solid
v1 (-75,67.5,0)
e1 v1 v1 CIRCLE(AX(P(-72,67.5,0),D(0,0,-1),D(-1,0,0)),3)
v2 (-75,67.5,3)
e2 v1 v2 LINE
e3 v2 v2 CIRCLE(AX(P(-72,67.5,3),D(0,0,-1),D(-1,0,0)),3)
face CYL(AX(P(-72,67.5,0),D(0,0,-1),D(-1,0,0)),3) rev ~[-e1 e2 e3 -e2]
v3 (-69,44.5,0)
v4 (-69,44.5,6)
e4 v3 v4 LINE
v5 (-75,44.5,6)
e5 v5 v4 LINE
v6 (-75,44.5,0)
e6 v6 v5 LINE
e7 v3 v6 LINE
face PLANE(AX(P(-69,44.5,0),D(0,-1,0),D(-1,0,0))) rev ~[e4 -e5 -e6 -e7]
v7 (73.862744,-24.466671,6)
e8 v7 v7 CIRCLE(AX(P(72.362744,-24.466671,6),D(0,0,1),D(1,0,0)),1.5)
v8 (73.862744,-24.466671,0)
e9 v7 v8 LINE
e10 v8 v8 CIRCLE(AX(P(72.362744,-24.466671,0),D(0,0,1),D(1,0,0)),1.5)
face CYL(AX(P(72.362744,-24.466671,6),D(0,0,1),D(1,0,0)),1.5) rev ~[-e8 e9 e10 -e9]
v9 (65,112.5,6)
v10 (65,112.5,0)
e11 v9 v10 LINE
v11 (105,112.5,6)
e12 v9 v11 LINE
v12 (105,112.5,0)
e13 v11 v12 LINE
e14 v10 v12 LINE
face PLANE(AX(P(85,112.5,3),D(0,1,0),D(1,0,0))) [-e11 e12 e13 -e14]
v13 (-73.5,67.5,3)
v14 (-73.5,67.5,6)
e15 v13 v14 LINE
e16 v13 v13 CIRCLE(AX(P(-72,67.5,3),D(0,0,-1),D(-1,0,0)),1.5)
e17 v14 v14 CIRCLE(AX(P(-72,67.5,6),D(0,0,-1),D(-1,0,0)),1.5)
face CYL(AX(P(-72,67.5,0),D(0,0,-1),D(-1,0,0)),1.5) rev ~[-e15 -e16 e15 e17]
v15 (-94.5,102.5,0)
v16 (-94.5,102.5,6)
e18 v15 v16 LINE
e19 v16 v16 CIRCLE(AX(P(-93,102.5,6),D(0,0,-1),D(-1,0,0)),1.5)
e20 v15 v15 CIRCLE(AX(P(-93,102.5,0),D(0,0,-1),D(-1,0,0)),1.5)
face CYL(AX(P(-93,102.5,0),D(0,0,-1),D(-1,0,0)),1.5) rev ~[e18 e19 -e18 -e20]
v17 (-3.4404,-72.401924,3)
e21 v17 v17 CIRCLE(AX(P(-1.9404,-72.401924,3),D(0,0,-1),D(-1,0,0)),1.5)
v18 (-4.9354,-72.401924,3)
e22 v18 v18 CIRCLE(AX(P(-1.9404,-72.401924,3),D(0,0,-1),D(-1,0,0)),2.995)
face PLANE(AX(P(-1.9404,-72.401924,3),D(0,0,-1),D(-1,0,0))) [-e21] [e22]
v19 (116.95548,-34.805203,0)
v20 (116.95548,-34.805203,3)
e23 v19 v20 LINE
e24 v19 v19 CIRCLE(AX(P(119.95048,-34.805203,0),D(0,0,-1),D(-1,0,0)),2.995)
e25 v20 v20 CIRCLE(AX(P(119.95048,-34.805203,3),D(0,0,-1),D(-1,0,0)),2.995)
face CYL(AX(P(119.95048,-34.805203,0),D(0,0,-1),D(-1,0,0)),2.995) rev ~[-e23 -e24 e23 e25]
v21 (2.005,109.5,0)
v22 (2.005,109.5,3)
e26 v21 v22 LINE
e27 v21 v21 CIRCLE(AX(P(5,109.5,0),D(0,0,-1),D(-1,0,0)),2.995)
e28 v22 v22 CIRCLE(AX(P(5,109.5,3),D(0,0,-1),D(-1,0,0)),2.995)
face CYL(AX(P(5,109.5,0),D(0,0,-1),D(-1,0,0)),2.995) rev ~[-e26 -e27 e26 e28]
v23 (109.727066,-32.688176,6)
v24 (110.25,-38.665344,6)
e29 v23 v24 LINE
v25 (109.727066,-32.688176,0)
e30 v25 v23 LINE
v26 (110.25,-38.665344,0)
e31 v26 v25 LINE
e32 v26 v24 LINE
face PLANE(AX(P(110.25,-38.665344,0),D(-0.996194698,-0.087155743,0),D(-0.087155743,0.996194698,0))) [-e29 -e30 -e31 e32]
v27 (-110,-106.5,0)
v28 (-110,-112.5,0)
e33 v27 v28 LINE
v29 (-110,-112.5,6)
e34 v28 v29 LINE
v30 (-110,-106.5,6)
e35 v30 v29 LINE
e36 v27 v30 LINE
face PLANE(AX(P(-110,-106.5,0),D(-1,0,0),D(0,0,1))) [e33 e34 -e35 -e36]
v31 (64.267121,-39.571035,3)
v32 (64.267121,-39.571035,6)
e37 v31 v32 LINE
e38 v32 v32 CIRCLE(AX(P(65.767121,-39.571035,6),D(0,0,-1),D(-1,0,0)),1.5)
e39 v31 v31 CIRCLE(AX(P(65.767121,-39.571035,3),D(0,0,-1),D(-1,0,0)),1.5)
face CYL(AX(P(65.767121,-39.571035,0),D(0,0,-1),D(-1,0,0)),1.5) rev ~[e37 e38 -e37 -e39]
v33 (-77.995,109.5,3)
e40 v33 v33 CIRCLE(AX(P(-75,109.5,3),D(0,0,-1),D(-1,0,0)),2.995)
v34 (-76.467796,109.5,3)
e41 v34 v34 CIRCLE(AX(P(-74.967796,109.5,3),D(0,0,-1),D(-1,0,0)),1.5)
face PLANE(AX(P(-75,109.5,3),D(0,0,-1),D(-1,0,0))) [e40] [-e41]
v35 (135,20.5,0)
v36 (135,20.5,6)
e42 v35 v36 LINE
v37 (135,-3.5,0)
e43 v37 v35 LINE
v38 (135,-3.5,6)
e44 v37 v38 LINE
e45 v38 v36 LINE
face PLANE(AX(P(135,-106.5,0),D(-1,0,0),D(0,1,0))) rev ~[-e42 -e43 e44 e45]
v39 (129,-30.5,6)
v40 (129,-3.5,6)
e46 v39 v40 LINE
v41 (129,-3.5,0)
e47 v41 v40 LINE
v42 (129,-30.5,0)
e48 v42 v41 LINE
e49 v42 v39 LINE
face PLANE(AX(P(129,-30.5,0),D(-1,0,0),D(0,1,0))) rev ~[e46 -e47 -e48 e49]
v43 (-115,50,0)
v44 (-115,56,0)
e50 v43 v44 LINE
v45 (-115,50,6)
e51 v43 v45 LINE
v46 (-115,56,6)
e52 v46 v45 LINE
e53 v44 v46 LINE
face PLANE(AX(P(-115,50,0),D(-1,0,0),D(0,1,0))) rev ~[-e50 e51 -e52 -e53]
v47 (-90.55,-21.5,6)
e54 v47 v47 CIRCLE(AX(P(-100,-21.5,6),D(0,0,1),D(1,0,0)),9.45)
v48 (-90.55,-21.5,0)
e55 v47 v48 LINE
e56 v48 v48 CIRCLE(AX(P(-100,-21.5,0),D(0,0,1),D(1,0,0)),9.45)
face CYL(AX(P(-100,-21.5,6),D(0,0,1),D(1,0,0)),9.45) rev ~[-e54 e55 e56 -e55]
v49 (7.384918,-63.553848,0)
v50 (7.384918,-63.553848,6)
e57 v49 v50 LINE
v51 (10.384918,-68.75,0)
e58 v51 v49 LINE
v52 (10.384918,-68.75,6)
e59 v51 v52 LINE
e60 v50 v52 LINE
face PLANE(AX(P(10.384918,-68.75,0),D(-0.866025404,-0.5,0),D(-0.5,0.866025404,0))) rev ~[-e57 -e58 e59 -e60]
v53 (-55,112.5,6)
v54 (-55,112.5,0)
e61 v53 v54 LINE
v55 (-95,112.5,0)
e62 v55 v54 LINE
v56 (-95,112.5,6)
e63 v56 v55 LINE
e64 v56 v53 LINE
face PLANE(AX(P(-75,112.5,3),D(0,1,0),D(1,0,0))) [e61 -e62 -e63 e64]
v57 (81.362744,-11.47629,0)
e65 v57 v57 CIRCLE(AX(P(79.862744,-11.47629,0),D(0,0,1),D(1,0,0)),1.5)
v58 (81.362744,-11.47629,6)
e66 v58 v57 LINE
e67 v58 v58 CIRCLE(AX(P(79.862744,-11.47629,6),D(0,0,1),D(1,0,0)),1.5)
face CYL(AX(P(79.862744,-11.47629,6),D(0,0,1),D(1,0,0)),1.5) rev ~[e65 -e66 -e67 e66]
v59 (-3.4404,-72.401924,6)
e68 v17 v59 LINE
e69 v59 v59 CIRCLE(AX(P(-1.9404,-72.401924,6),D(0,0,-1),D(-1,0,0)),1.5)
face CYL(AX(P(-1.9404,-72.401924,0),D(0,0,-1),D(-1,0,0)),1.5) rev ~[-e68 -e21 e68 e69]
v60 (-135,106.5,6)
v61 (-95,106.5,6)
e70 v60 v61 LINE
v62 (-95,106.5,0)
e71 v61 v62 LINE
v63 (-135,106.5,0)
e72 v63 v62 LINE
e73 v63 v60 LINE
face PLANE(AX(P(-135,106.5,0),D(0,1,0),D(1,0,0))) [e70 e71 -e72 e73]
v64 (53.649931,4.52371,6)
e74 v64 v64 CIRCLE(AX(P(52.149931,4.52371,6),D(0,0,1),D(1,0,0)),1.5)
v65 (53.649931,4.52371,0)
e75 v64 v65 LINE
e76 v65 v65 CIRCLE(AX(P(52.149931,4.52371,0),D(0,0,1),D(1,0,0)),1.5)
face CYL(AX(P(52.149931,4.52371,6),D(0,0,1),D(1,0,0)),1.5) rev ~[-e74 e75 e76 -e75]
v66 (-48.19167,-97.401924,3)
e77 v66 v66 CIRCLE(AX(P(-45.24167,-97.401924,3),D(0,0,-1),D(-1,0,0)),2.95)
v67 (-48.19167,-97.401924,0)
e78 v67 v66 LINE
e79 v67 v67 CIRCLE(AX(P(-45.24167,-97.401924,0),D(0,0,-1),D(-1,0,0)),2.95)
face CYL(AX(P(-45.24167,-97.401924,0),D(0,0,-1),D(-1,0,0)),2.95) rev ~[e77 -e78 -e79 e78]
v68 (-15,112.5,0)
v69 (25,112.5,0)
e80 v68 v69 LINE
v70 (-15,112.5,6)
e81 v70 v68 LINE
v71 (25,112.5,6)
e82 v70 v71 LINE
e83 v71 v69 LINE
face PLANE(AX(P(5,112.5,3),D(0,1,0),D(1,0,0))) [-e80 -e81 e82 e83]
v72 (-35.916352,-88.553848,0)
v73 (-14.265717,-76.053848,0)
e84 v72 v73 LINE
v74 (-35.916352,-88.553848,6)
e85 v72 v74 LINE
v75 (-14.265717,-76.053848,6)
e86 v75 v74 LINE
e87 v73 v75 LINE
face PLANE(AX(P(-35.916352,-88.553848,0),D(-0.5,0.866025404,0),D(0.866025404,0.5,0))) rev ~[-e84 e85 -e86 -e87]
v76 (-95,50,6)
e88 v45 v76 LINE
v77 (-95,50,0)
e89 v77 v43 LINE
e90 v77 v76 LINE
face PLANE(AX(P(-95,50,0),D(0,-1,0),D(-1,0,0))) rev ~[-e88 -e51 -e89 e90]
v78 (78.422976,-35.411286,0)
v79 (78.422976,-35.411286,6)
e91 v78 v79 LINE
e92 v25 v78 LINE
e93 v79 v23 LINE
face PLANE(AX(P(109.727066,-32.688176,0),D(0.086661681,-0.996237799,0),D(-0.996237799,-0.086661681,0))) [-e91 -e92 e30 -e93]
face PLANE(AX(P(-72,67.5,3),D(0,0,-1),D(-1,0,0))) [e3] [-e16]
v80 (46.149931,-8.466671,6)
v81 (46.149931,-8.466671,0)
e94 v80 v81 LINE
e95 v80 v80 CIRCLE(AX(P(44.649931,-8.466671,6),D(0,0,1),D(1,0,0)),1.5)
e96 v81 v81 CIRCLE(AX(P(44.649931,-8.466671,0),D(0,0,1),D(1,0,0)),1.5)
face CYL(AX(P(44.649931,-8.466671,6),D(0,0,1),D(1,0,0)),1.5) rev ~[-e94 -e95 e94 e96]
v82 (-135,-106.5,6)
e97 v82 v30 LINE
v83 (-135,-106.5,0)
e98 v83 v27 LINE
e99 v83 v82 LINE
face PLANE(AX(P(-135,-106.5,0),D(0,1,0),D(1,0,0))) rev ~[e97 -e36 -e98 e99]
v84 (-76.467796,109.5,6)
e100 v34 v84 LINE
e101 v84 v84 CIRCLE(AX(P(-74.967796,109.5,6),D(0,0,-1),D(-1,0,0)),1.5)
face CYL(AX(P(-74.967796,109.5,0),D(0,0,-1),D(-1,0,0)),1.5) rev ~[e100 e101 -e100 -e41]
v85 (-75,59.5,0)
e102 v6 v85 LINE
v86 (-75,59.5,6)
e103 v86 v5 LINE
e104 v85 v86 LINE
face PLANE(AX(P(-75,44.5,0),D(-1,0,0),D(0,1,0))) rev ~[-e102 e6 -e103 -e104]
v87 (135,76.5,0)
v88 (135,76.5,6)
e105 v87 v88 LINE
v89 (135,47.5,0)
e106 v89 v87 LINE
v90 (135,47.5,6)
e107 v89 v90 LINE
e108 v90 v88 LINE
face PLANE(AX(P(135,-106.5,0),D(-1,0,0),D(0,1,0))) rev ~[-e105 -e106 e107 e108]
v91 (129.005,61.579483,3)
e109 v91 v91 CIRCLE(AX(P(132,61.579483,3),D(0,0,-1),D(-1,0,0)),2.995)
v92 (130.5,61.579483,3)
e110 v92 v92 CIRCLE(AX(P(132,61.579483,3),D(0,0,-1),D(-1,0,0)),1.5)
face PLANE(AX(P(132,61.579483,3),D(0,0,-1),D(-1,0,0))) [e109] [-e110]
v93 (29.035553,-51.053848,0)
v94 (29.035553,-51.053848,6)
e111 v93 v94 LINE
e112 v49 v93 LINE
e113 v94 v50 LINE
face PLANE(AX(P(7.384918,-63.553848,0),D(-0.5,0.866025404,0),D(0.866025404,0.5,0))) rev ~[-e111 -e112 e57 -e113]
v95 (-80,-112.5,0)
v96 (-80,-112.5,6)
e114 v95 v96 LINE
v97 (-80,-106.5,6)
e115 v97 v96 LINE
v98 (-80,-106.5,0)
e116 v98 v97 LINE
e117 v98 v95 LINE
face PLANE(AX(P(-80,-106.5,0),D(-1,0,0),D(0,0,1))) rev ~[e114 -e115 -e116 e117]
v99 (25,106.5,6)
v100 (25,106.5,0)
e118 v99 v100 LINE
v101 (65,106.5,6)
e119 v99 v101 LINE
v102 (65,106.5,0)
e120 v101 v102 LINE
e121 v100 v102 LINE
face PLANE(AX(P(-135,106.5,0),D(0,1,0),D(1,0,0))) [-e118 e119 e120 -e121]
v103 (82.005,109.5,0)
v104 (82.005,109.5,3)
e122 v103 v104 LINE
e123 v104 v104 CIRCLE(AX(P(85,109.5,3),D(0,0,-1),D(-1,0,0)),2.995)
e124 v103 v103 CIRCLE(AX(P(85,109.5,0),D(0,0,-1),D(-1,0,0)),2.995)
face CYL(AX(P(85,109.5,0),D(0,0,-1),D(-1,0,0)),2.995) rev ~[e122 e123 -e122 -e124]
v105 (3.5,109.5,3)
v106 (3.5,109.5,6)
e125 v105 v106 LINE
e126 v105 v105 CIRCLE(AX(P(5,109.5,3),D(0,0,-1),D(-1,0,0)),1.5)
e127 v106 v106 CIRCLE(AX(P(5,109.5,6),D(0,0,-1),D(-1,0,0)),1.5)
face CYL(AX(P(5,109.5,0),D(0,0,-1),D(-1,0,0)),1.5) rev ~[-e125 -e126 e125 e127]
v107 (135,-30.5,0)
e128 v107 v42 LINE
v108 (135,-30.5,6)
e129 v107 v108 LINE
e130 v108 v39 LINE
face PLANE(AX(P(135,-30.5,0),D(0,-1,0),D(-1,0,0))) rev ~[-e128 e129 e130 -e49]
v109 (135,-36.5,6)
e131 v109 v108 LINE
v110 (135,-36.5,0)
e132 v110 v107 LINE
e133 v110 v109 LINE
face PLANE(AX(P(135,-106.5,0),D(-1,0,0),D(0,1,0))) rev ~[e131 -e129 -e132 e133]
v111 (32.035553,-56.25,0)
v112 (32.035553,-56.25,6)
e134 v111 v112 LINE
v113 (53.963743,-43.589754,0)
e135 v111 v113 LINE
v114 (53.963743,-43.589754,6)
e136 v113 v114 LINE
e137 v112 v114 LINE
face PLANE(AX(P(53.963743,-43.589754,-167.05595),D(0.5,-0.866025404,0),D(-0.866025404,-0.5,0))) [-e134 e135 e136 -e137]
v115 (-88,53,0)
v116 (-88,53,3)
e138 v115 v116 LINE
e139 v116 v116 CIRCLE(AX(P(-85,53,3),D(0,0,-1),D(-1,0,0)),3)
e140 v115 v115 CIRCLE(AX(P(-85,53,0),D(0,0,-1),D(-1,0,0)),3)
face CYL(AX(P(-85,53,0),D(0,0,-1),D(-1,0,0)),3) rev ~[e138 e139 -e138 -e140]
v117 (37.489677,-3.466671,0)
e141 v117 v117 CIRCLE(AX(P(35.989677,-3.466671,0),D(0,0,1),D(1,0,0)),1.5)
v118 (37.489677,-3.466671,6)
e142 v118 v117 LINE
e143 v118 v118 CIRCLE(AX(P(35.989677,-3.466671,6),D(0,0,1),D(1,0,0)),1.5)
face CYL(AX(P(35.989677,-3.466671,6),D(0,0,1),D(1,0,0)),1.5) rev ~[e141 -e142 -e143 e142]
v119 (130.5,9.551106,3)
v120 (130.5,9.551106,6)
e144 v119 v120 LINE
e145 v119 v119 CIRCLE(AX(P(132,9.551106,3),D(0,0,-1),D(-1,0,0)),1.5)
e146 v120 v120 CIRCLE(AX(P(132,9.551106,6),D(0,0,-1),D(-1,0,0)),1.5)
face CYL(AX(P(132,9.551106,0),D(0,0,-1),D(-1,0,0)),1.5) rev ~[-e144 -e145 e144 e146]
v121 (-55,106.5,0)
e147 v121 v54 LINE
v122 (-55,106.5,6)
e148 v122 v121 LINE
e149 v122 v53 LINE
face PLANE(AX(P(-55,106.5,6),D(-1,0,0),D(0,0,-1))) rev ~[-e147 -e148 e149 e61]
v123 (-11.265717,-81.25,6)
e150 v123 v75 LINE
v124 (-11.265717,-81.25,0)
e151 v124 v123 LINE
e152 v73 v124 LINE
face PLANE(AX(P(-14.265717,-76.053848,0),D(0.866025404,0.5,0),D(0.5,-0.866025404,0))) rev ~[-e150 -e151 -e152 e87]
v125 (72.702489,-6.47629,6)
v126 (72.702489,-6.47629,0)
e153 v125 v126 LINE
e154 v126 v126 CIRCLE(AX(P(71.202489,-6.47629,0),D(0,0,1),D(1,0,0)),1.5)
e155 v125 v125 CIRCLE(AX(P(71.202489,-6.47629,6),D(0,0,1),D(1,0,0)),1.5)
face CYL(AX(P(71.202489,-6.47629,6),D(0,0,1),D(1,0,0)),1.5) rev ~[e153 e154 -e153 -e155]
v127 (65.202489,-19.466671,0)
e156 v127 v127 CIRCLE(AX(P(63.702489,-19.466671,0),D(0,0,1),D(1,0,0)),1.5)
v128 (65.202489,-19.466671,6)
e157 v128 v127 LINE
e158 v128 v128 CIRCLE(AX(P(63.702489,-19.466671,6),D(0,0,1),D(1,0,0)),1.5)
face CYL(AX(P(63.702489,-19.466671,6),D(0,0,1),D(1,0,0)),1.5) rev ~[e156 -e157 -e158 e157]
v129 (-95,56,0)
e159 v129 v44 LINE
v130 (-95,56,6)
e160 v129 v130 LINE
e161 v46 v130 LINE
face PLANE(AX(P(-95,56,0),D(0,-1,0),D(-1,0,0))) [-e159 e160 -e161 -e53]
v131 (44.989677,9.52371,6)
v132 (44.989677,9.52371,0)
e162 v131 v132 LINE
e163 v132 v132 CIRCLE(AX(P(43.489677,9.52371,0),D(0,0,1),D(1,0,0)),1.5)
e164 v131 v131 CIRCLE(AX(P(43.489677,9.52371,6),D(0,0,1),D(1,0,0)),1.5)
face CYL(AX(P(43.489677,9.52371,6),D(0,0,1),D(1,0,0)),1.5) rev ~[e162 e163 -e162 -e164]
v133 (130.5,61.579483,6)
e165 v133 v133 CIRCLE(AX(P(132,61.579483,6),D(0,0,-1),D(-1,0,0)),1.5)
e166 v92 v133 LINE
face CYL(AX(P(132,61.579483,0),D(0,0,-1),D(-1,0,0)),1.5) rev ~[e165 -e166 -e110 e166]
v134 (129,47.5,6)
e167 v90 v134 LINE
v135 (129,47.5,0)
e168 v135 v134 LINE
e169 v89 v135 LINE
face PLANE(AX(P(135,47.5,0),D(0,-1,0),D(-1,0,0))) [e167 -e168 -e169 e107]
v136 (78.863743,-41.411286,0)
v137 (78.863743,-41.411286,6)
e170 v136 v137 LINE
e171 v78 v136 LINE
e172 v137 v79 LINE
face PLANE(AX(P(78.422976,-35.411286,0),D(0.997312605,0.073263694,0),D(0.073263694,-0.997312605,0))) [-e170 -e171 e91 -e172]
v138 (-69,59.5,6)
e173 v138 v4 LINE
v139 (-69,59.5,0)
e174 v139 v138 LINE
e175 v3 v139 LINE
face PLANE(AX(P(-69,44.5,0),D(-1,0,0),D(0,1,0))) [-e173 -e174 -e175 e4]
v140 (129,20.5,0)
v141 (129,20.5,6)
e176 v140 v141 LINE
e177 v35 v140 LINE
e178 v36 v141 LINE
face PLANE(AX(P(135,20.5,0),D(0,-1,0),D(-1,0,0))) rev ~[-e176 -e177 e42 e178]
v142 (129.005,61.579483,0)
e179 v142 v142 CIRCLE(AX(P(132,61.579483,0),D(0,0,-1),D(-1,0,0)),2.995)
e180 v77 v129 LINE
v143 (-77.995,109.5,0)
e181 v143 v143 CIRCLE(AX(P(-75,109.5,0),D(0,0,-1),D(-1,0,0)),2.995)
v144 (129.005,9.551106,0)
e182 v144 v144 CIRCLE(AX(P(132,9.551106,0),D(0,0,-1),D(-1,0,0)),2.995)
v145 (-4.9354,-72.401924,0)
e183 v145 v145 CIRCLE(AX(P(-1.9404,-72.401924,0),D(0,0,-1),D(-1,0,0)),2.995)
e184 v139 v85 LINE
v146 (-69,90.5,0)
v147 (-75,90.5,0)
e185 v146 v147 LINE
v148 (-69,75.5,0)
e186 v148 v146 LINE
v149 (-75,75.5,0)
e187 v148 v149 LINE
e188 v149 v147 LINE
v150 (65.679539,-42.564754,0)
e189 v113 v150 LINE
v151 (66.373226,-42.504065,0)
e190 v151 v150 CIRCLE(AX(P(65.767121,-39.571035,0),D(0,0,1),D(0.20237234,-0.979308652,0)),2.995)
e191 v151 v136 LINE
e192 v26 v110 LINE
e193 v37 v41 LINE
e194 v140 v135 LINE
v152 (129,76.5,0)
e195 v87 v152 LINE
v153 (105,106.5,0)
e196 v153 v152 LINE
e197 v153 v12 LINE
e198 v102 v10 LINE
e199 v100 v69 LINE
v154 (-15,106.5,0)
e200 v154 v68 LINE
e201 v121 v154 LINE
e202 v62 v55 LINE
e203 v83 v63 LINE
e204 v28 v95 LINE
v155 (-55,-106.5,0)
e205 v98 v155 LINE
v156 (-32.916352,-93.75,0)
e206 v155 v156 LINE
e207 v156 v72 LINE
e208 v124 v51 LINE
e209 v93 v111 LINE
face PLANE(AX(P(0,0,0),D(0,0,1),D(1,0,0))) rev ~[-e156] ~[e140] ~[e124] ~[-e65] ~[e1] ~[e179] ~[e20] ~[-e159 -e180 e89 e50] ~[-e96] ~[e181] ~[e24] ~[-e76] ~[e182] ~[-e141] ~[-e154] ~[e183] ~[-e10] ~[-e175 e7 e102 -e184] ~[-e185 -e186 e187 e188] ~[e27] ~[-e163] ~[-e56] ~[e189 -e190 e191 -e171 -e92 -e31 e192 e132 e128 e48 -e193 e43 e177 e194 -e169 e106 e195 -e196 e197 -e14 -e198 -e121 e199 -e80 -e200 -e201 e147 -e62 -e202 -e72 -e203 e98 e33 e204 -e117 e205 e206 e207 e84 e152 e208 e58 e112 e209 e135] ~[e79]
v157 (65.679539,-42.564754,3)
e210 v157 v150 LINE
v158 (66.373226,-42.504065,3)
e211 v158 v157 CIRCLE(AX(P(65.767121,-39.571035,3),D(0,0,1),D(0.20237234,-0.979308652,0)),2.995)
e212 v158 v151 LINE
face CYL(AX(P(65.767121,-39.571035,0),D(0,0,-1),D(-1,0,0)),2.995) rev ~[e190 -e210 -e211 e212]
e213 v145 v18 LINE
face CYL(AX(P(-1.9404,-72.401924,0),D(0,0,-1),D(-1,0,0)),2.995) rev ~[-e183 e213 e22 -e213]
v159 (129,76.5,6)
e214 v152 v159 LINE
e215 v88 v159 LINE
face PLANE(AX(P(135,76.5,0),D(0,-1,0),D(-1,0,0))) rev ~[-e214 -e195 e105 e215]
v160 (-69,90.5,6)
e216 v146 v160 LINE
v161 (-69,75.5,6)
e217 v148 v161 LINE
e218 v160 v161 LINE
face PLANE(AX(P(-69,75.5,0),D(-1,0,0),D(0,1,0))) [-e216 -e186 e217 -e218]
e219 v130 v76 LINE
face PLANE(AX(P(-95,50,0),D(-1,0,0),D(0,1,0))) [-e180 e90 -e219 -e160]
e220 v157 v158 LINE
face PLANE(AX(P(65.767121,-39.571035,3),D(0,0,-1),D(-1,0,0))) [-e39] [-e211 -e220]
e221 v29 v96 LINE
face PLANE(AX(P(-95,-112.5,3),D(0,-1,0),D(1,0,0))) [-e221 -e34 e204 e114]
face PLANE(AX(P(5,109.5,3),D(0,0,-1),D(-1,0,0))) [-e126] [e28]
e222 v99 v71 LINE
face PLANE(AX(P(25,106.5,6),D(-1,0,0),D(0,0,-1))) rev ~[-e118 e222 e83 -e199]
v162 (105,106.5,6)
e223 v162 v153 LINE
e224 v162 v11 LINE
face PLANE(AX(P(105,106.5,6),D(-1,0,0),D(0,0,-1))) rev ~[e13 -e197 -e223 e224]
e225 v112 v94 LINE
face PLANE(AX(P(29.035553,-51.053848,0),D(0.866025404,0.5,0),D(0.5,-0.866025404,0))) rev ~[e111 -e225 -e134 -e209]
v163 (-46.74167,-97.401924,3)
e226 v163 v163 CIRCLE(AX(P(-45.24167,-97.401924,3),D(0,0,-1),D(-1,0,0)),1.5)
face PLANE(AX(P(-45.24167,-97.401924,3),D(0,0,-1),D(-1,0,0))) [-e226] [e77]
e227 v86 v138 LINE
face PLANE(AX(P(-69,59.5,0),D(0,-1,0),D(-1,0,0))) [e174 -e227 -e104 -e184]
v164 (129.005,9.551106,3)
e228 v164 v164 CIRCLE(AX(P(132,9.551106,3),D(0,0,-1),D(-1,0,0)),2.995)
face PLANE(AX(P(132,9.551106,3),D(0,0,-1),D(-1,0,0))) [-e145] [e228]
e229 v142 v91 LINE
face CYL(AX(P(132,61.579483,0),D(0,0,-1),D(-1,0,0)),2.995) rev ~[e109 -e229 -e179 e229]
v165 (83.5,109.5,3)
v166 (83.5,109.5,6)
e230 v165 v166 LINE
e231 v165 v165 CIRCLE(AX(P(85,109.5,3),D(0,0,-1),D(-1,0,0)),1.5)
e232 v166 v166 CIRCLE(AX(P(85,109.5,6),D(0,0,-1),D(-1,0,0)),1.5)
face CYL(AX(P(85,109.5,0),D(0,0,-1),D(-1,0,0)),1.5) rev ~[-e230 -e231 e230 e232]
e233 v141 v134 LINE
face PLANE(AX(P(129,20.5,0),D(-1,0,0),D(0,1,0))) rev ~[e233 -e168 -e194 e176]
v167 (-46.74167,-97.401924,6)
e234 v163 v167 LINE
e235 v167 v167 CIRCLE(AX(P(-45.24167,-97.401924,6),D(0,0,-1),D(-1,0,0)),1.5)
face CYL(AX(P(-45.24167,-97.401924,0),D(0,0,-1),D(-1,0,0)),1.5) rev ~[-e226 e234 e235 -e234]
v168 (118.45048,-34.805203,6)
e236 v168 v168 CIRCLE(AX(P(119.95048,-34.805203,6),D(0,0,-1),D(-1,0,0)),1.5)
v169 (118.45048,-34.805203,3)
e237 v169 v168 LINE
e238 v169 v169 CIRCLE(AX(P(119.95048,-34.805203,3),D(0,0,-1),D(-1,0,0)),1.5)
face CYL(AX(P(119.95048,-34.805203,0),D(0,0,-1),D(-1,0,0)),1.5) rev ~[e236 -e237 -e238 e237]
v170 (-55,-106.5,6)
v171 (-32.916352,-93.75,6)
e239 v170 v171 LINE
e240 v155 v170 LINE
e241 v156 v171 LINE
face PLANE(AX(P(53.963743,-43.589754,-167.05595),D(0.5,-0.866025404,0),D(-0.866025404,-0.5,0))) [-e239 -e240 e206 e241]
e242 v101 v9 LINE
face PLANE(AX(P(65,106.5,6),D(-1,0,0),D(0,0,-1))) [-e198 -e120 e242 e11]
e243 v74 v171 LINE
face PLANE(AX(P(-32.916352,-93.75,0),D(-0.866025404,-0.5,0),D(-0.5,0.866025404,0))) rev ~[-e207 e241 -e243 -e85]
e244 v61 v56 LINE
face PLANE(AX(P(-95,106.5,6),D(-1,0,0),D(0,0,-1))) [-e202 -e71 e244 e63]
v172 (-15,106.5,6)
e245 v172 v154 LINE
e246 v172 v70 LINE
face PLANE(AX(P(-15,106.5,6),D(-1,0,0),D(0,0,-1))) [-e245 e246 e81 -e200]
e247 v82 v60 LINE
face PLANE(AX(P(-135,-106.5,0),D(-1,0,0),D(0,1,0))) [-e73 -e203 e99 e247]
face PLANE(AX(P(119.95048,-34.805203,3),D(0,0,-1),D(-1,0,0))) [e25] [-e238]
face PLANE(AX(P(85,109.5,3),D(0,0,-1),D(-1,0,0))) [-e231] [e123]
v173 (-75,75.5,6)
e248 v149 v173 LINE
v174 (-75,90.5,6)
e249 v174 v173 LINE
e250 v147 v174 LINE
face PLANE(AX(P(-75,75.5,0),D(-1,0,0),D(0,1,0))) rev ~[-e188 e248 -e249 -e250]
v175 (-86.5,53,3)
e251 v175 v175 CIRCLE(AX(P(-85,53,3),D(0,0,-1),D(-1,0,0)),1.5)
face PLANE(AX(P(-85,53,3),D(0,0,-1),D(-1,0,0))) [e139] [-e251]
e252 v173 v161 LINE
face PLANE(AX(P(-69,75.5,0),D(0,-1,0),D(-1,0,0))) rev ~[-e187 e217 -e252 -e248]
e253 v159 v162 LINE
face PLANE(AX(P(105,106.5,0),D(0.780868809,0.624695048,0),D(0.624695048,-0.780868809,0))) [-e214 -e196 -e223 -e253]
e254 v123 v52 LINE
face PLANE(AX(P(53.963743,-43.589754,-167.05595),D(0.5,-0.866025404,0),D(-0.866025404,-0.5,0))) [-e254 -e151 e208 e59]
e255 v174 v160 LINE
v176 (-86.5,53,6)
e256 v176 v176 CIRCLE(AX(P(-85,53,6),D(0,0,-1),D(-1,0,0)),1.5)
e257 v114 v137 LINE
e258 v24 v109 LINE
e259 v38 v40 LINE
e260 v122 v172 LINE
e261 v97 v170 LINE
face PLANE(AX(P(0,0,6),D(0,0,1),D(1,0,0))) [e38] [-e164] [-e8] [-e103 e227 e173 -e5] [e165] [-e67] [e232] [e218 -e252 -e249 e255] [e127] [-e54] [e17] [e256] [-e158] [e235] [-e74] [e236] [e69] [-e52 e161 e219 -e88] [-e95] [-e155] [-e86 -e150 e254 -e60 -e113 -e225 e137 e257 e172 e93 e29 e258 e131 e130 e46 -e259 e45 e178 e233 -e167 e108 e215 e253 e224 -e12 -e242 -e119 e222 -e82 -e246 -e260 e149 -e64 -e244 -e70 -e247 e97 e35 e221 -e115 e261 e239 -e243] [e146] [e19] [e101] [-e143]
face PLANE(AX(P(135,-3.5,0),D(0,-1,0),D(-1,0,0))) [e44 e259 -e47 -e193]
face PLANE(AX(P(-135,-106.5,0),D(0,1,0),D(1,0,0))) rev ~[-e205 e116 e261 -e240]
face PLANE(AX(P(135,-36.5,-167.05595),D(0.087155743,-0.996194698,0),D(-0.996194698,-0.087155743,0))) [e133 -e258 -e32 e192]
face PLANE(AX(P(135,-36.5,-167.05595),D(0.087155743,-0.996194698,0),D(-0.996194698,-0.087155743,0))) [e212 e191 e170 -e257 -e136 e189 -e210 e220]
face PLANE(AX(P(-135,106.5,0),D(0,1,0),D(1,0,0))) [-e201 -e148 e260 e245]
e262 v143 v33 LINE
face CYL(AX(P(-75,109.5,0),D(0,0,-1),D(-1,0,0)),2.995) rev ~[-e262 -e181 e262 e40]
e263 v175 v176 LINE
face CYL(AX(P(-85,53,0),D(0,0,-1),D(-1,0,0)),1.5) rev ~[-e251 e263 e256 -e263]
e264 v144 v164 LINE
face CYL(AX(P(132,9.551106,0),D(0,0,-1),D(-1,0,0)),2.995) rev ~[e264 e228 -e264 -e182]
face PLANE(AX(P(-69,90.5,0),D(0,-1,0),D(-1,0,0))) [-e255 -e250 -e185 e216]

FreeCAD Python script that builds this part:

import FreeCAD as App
import Part
import Sketcher

V = App.Vector
Q = App.Units.Quantity


def add_polygon(sketch, points):
    """Adds a closed chain of lines whose ends are joined by coincident constraints."""
    first, n = sketch.GeometryCount, len(points)
    for a, b in zip(points, points[1:] + points[:1]):
        sketch.addGeometry(Part.LineSegment(App.Vector(*a, 0), App.Vector(*b, 0)), False)
    for i in range(n):
        sketch.addConstraint(Sketcher.Constraint("Coincident", first + i, 2, first + (i + 1) % n, 1))

doc = App.newDocument("Part")
body = doc.addObject("PartDesign::Body", "Body")

sketch1 = body.newObject("Sketcher::SketchObject", "Sketch")
sketch1.AttachmentSupport = (doc.getObject("XY_Plane"), [""])
sketch1.MapMode = "FlatFace"
add_polygon(sketch1, [(-135, 106), (-135, -106), (135, -106), (135, 106)])
sketch1.addConstraint([
    Sketcher.Constraint("Vertical", 0),
    Sketcher.Constraint("Horizontal", 1),
    Sketcher.Constraint("Vertical", 2),
    Sketcher.Constraint("Horizontal", 3),
    Sketcher.Constraint("Symmetric", 0, 2, 2, 2, -1, 1),
    Sketcher.Constraint("DistanceX", 1, 1, 1, 2, Q("270 mm")),
    Sketcher.Constraint("DistanceY", 0, 2, 0, 1, Q("213 mm")),
])
pad1 = body.newObject("PartDesign::Pad", "Pad")
pad1.Profile = sketch1
pad1.Length = 6

sketch2 = body.newObject("Sketcher::SketchObject", "Sketch001")
sketch2.AttachmentSupport = (doc.getObject("XY_Plane"), [""])
sketch2.MapMode = "FlatFace"
sketch2.AttachmentOffset = App.Placement(V(0, 0, 6), App.Rotation())
sketch2.addGeometry([
    Part.Circle(V(-100, -21.5, 0), V(0, 0, 1), 9.4),
    Part.Circle(V(43.5, 9.5, 0), V(0, 0, 1), 1.5),
    Part.Circle(V(52.1, 4.5, 0), V(0, 0, 1), 1.5),
    Part.Circle(V(36, -3.5, 0), V(0, 0, 1), 1.5),
    Part.Circle(V(44.6, -8.5, 0), V(0, 0, 1), 1.5),
    Part.Circle(V(63.7, -19.5, 0), V(0, 0, 1), 1.5),
    Part.Circle(V(72.4, -24.5, 0), V(0, 0, 1), 1.5),
    Part.Circle(V(79.9, -11.5, 0), V(0, 0, 1), 1.5),
    Part.Circle(V(71.2, -6.5, 0), V(0, 0, 1), 1.5),
], False)
sketch2.addConstraint([
    Sketcher.Constraint("Equal", 1, 2),
    Sketcher.Constraint("Equal", 2, 3),
    Sketcher.Constraint("Equal", 3, 4),
    Sketcher.Constraint("Equal", 4, 5),
    Sketcher.Constraint("Equal", 5, 6),
    Sketcher.Constraint("Equal", 6, 7),
    Sketcher.Constraint("Equal", 7, 8),
    Sketcher.Constraint("Diameter", 1, Q("3 mm")),
    Sketcher.Constraint("Diameter", 0, Q("18.9 mm")),
    Sketcher.Constraint("DistanceX", 0, 3, -1, 1, Q("100 mm")),
    Sketcher.Constraint("DistanceY", 2, 3, 1, 3, Q("5 mm")),
    Sketcher.Constraint("DistanceY", 4, 3, 3, 3, Q("5 mm")),
    Sketcher.Constraint("DistanceY", 5, 3, 4, 3, Q("11 mm")),
    Sketcher.Constraint("DistanceY", 6, 3, 5, 3, Q("5 mm")),
    Sketcher.Constraint("DistanceY", 7, 3, 2, 3, Q("16 mm")),
    Sketcher.Constraint("DistanceY", 7, 3, 8, 3, Q("5 mm")),
    Sketcher.Constraint("DistanceY", 0, 3, -1, 1, Q("21.5 mm")),
    Sketcher.Constraint("DistanceX", 3, 3, 1, 3, Q("7.5 mm")),
    Sketcher.Constraint("DistanceX", 4, 3, 2, 3, Q("7.5 mm")),
    Sketcher.Constraint("DistanceX", 6, 3, 7, 3, Q("7.5 mm")),
    Sketcher.Constraint("DistanceX", 5, 3, 8, 3, Q("7.5 mm")),
    Sketcher.Constraint("DistanceY", -1, 1, 1, 3, Q("9.52371 mm")),
    Sketcher.Constraint("DistanceX", -1, 1, 2, 3, Q("52.149931 mm")),
    Sketcher.Constraint("DistanceY", 3, 3, -1, 1, Q("3.466671 mm")),
    Sketcher.Constraint("DistanceX", -1, 1, 5, 3, Q("63.702489 mm")),
    Sketcher.Constraint("DistanceX", -1, 1, 1, 3, Q("43.489677 mm")),
    Sketcher.Constraint("DistanceX", -1, 1, 6, 3, Q("72.362744 mm")),
])
pocket1 = body.newObject("PartDesign::Pocket", "Pocket")
pocket1.Profile = sketch2
pocket1.Length = 10

sketch3 = body.newObject("Sketcher::SketchObject", "Sketch002")
sketch3.AttachmentSupport = (doc.getObject("XY_Plane"), [""])
sketch3.MapMode = "FlatFace"
sketch3.AttachmentOffset = App.Placement(V(0, 0, 6), App.Rotation())
add_polygon(sketch3, [(135, -36), (54, -44), (-55, -106), (135, -106)])
sketch3.addConstraint([
    Sketcher.Constraint("Horizontal", 2),
    Sketcher.Constraint("Vertical", 3),
    Sketcher.Constraint("DistanceX", 2, 1, 2, 2, Q("190 mm")),
    Sketcher.Constraint("DistanceY", 3, 1, 3, 2, Q("70 mm")),
    Sketcher.Constraint("Angle", 0, Q("-175 deg")),
    Sketcher.Constraint("Angle", 1, Q("-150 deg")),
    Sketcher.Constraint("DistanceX", 1, 2, -1, 1, Q("55 mm")),
    Sketcher.Constraint("DistanceY", 1, 2, -1, 1, Q("106.5 mm")),
])
pocket2 = body.newObject("PartDesign::Pocket", "Pocket001")
pocket2.Profile = sketch3
pocket2.Type = "ThroughAll"
pocket2.Midplane = True

sketch4 = body.newObject("Sketcher::SketchObject", "Sketch003")
sketch4.AttachmentSupport = (doc.getObject("XZ_Plane"), [""])
sketch4.MapMode = "FlatFace"
sketch4.AttachmentOffset = App.Placement(V(0, 0, -106.5), App.Rotation())
add_polygon(sketch4, [(-95, 0), (-95, 6), (-55, 6), (-55, 0)])
add_polygon(sketch4, [(-15, 0), (-15, 6), (25, 6), (25, 0)])
add_polygon(sketch4, [(65, 0), (65, 6), (105, 6), (105, 0)])
sketch4.addConstraint([
    Sketcher.Constraint("Vertical", 0),
    Sketcher.Constraint("Horizontal", 1),
    Sketcher.Constraint("Vertical", 2),
    Sketcher.Constraint("Horizontal", 3),
    Sketcher.Constraint("Vertical", 4),
    Sketcher.Constraint("Horizontal", 5),
    Sketcher.Constraint("Vertical", 6),
    Sketcher.Constraint("Horizontal", 7),
    Sketcher.Constraint("Vertical", 8),
    Sketcher.Constraint("Horizontal", 9),
    Sketcher.Constraint("Vertical", 10),
    Sketcher.Constraint("Horizontal", 11),
    Sketcher.Constraint("PointOnObject", 2, 2, -1),
    Sketcher.Constraint("PointOnObject", 6, 2, -1),
    Sketcher.Constraint("PointOnObject", 10, 2, -1),
    Sketcher.Constraint("Horizontal", 1, 2, 4, 2),
    Sketcher.Constraint("Horizontal", 5, 2, 8, 2),
    Sketcher.Constraint("Equal", 3, 5),
    Sketcher.Constraint("Equal", 7, 9),
    Sketcher.Constraint("DistanceX", 1, 1, 1, 2, Q("40 mm")),
    Sketcher.Constraint("DistanceY", 0, 1, 0, 2, Q("6 mm")),
    Sketcher.Constraint("DistanceX", 0, 2, -1, 1, Q("95 mm")),
    Sketcher.Constraint("DistanceX", 4, 2, -1, 1, Q("15 mm")),
    Sketcher.Constraint("DistanceX", -1, 1, 8, 2, Q("65 mm")),
])
pad2 = body.newObject("PartDesign::Pad", "Pad001")
pad2.Profile = sketch4
pad2.Length = 6
pad2.Reversed = True

sketch5 = body.newObject("Sketcher::SketchObject", "Sketch004")
sketch5.AttachmentSupport = (doc.getObject("XY_Plane"), [""])
sketch5.MapMode = "FlatFace"
add_polygon(sketch5, [(135, 106), (135, 76), (129, 76), (129, 106)])
add_polygon(sketch5, [(135, 48), (135, 20), (129, 20), (129, 48)])
add_polygon(sketch5, [(135, -4), (135, -30), (129, -30), (129, -4)])
sketch5.addConstraint([
    Sketcher.Constraint("Vertical", 0),
    Sketcher.Constraint("Horizontal", 1),
    Sketcher.Constraint("Vertical", 2),
    Sketcher.Constraint("Horizontal", 3),
    Sketcher.Constraint("Vertical", 4),
    Sketcher.Constraint("Horizontal", 5),
    Sketcher.Constraint("Vertical", 6),
    Sketcher.Constraint("Horizontal", 7),
    Sketcher.Constraint("Vertical", 8),
    Sketcher.Constraint("Horizontal", 9),
    Sketcher.Constraint("Vertical", 10),
    Sketcher.Constraint("Horizontal", 11),
    Sketcher.Constraint("Vertical", 3, 2, 4, 2),
    Sketcher.Constraint("Vertical", 2, 2, 5, 2),
    Sketcher.Constraint("Vertical", 7, 2, 8, 2),
    Sketcher.Constraint("Vertical", 6, 2, 9, 2),
    Sketcher.Constraint("Equal", 6, 8),
    Sketcher.Constraint("DistanceX", 1, 2, 1, 1, Q("6 mm")),
    Sketcher.Constraint("DistanceY", 0, 2, 0, 1, Q("30 mm")),
    Sketcher.Constraint("DistanceY", 4, 2, 4, 1, Q("27 mm")),
    Sketcher.Constraint("DistanceX", -1, 1, 0, 2, Q("135 mm")),
    Sketcher.Constraint("DistanceY", 4, 2, 0, 2, Q("56 mm")),
    Sketcher.Constraint("DistanceY", 8, 2, 4, 2, Q("51 mm")),
    Sketcher.Constraint("DistanceY", -1, 1, 0, 2, Q("76.5 mm")),
])
pocket3 = body.newObject("PartDesign::Pocket", "Pocket002")
pocket3.Profile = sketch5
pocket3.Length = 6
pocket3.Reversed = True

sketch6 = body.newObject("Sketcher::SketchObject", "Sketch005")
sketch6.AttachmentSupport = (doc.getObject("XZ_Plane"), [""])
sketch6.MapMode = "FlatFace"
sketch6.AttachmentOffset = App.Placement(V(0, 0, 106.5), App.Rotation())
add_polygon(sketch6, [(-110, 6), (-110, 0), (-80, 0), (-80, 6)])
sketch6.addConstraint([
    Sketcher.Constraint("Vertical", 0),
    Sketcher.Constraint("Horizontal", 1),
    Sketcher.Constraint("Vertical", 2),
    Sketcher.Constraint("Horizontal", 3),
    Sketcher.Constraint("PointOnObject", 0, 2, -1),
    Sketcher.Constraint("DistanceX", 1, 1, 1, 2, Q("30 mm")),
    Sketcher.Constraint("DistanceY", 0, 2, 0, 1, Q("6 mm")),
    Sketcher.Constraint("DistanceX", 0, 2, -1, 1, Q("110 mm")),
])
pad3 = body.newObject("PartDesign::Pad", "Pad002")
pad3.Profile = sketch6
pad3.Length = 6

sketch7 = body.newObject("Sketcher::SketchObject", "Sketch006")
sketch7.AttachmentSupport = (doc.getObject("XY_Plane"), [""])
sketch7.MapMode = "FlatFace"
add_polygon(sketch7, [(109.727066, -32.688176), (110.25, -38.665344), (78.863743, -41.411286), (78.422976, -35.411286)])
sketch7.addConstraint([
    Sketcher.Constraint("Perpendicular", 0, 1),
    Sketcher.Constraint("Angle", 0, Q("-85 deg")),
    Sketcher.Constraint("Distance", 0, Q("6 mm")),
    Sketcher.Constraint("DistanceY", 1, 2, 2, 2, Q("6 mm")),
    Sketcher.Constraint("DistanceX", -1, 1, 0, 2, Q("110.25 mm")),
    Sketcher.Constraint("DistanceY", 1, 2, 0, 2, Q("2.745942 mm")),
    Sketcher.Constraint("DistanceX", 2, 2, 3, 2, Q("31.30409 mm")),
    Sketcher.Constraint("DistanceY", 0, 2, -1, 1, Q("38.665344 mm")),
])
pocket4 = body.newObject("PartDesign::Pocket", "Pocket003")
pocket4.Profile = sketch7
pocket4.Type = "ThroughAll"
pocket4.Reversed = True

sketch8 = body.newObject("Sketcher::SketchObject", "Sketch007")
sketch8.AttachmentSupport = (doc.getObject("XY_Plane"), [""])
sketch8.MapMode = "FlatFace"
add_polygon(sketch8, [(32, -56), (10, -69), (7, -64), (29, -51)])
add_polygon(sketch8, [(-11, -81), (-33, -94), (-36, -89), (-14, -76)])
sketch8.addConstraint([
    Sketcher.Constraint("Perpendicular", 0, 1),
    Sketcher.Constraint("Perpendicular", 1, 2),
    Sketcher.Constraint("Perpendicular", 2, 3),
    Sketcher.Constraint("Perpendicular", 3, 4),
    Sketcher.Constraint("Perpendicular", 4, 5),
    Sketcher.Constraint("Perpendicular", 5, 6),
    Sketcher.Constraint("Perpendicular", 6, 7),
    Sketcher.Constraint("Equal", 2, 4),
    Sketcher.Constraint("Equal", 3, 5),
    Sketcher.Constraint("Angle", 0, Q("-150 deg")),
    Sketcher.Constraint("Distance", 0, Q("25 mm")),
    Sketcher.Constraint("Distance", 1, Q("6 mm")),
    Sketcher.Constraint("DistanceY", 4, 2, 0, 2, Q("25 mm")),
    Sketcher.Constraint("DistanceY", 0, 2, -1, 1, Q("68.75 mm")),
    Sketcher.Constraint("DistanceX", 4, 2, 0, 2, Q("43.30127 mm")),
    Sketcher.Constraint("DistanceX", -1, 1, 0, 2, Q("10.384918 mm")),
])
pocket5 = body.newObject("PartDesign::Pocket", "Pocket004")
pocket5.Profile = sketch8
pocket5.Length = 10
pocket5.Reversed = True

sketch9 = body.newObject("Sketcher::SketchObject", "Sketch008")
sketch9.AttachmentSupport = (doc.getObject("XY_Plane"), [""])
sketch9.MapMode = "FlatFace"
add_polygon(sketch9, [(-69, 60), (-69, 44), (-75, 44), (-75, 60)])
add_polygon(sketch9, [(-69, 90), (-69, 76), (-75, 76), (-75, 90)])
sketch9.addConstraint([
    Sketcher.Constraint("Vertical", 0),
    Sketcher.Constraint("Horizontal", 1),
    Sketcher.Constraint("Vertical", 2),
    Sketcher.Constraint("Horizontal", 3),
    Sketcher.Constraint("Vertical", 4),
    Sketcher.Constraint("Horizontal", 5),
    Sketcher.Constraint("Vertical", 6),
    Sketcher.Constraint("Horizontal", 7),
    Sketcher.Constraint("Vertical", 3, 2, 4, 2),
    Sketcher.Constraint("Vertical", 2, 2, 5, 2),
    Sketcher.Constraint("Equal", 2, 4),
    Sketcher.Constraint("DistanceX", 1, 2, 1, 1, Q("6 mm")),
    Sketcher.Constraint("DistanceY", 0, 2, 0, 1, Q("15 mm")),
    Sketcher.Constraint("DistanceX", 0, 2, -1, 1, Q("69 mm")),
    Sketcher.Constraint("DistanceY", 3, 2, 4, 2, Q("16 mm")),
    Sketcher.Constraint("DistanceY", -1, 1, 0, 2, Q("44.5 mm")),
])
pocket6 = body.newObject("PartDesign::Pocket", "Pocket005")
pocket6.Profile = sketch9
pocket6.Type = "ThroughAll"
pocket6.Reversed = True

sketch10 = body.newObject("Sketcher::SketchObject", "Sketch009")
sketch10.AttachmentSupport = (doc.getObject("XY_Plane"), [""])
sketch10.MapMode = "FlatFace"
add_polygon(sketch10, [(129, 106), (129, 76), (105, 106)])
sketch10.addConstraint([
    Sketcher.Constraint("Vertical", 0),
    Sketcher.Constraint("Horizontal", 2),
    Sketcher.Constraint("DistanceX", 2, 1, 2, 2, Q("24 mm")),
    Sketcher.Constraint("DistanceY", 0, 2, 0, 1, Q("30 mm")),
    Sketcher.Constraint("DistanceX", -1, 1, 0, 2, Q("129 mm")),
    Sketcher.Constraint("DistanceY", -1, 1, 0, 2, Q("76.5 mm")),
])
pocket7 = body.newObject("PartDesign::Pocket", "Pocket006")
pocket7.Profile = sketch10
pocket7.Type = "ThroughAll"
pocket7.Reversed = True

sketch11 = body.newObject("Sketcher::SketchObject", "Sketch010")
sketch11.AttachmentSupport = (doc.getObject("XY_Plane"), [""])
sketch11.MapMode = "FlatFace"
sketch11.addGeometry([
    Part.Circle(V(85, 109.5, 0), V(0, 0, 1), 3),
    Part.Circle(V(5, 109.5, 0), V(0, 0, 1), 3),
    Part.Circle(V(-75, 109.5, 0), V(0, 0, 1), 3),
    Part.Circle(V(-1.9, -72.4, 0), V(0, 0, 1), 3),
    Part.Circle(V(65.8, -39.6, 0), V(0, 0, 1), 3),
    Part.Circle(V(-45.2, -97.4, 0), V(0, 0, 1), 3),
    Part.Circle(V(132, 9.6, 0), V(0, 0, 1), 3),
    Part.Circle(V(132, 61.6, 0), V(0, 0, 1), 3),
    Part.Circle(V(120, -34.8, 0), V(0, 0, 1), 3),
    Part.Circle(V(-72, 67.5, 0), V(0, 0, 1), 3),
    Part.Circle(V(-85, 53, 0), V(0, 0, 1), 3),
], False)
sketch11.addConstraint([
    Sketcher.Constraint("Equal", 0, 1),
    Sketcher.Constraint("Equal", 1, 2),
    Sketcher.Constraint("Equal", 2, 3),
    Sketcher.Constraint("Equal", 3, 4),
    Sketcher.Constraint("Equal", 4, 6),
    Sketcher.Constraint("Equal", 6, 7),
    Sketcher.Constraint("Equal", 7, 8),
    Sketcher.Constraint("Equal", 9, 10),
    Sketcher.Constraint("Horizontal", 0, 3, 1, 3),
    Sketcher.Constraint("Horizontal", 1, 3, 2, 3),
    Sketcher.Constraint("Vertical", 6, 3, 7, 3),
    Sketcher.Constraint("Diameter", 9, Q("6 mm")),
    Sketcher.Constraint("Diameter", 5, Q("5.9 mm")),
    Sketcher.Constraint("Diameter", 0, Q("5.99 mm")),
    Sketcher.Constraint("DistanceX", -1, 1, 0, 3, Q("85 mm")),
    Sketcher.Constraint("DistanceX", -1, 1, 1, 3, Q("5 mm")),
    Sketcher.Constraint("DistanceX", 2, 3, -1, 1, Q("75 mm")),
    Sketcher.Constraint("DistanceX", -1, 1, 6, 3, Q("132 mm")),
    Sketcher.Constraint("DistanceX", 9, 3, -1, 1, Q("72 mm")),
    Sketcher.Constraint("DistanceX", 10, 3, -1, 1, Q("85 mm")),
    Sketcher.Constraint("DistanceY", -1, 1, 10, 3, Q("53 mm")),
    Sketcher.Constraint("DistanceY", 5, 3, 3, 3, Q("25 mm")),
    Sketcher.Constraint("DistanceY", 9, 3, 2, 3, Q("42 mm")),
    Sketcher.Constraint("DistanceY", -1, 1, 0, 3, Q("109.5 mm")),
    Sketcher.Constraint("DistanceX", 3, 3, -1, 1, Q("1.9404 mm")),
    Sketcher.Constraint("DistanceX", -1, 1, 4, 3, Q("65.767121 mm")),
    Sketcher.Constraint("DistanceX", 5, 3, -1, 1, Q("45.24167 mm")),
    Sketcher.Constraint("DistanceX", -1, 1, 8, 3, Q("119.95048 mm")),
    Sketcher.Constraint("DistanceY", 3, 3, 4, 3, Q("32.830888 mm")),
    Sketcher.Constraint("DistanceY", 4, 3, 6, 3, Q("49.122141 mm")),
    Sketcher.Constraint("DistanceY", 4, 3, 7, 3, Q("101.150519 mm")),
    Sketcher.Constraint("DistanceY", 8, 3, 6, 3, Q("44.356309 mm")),
    Sketcher.Constraint("DistanceY", 3, 3, -1, 1, Q("72.401924 mm")),
])
pocket8 = body.newObject("PartDesign::Pocket", "Pocket007")
pocket8.Profile = sketch11
pocket8.Length = 3
pocket8.Reversed = True

sketch12 = body.newObject("Sketcher::SketchObject", "Sketch011")
sketch12.AttachmentSupport = (doc.getObject("XY_Plane"), [""])
sketch12.MapMode = "FlatFace"
sketch12.addGeometry([
    Part.Circle(V(5, 109.5, 0), V(0, 0, 1), 1.5),
    Part.Circle(V(-75, 109.5, 0), V(0, 0, 1), 1.5),
    Part.Circle(V(85, 109.5, 0), V(0, 0, 1), 1.5),
    Part.Circle(V(132, 61.6, 0), V(0, 0, 1), 1.5),
    Part.Circle(V(132, 9.6, 0), V(0, 0, 1), 1.5),
    Part.Circle(V(120, -34.8, 0), V(0, 0, 1), 1.5),
    Part.Circle(V(65.8, -39.6, 0), V(0, 0, 1), 1.5),
    Part.Circle(V(-1.9, -72.4, 0), V(0, 0, 1), 1.5),
    Part.Circle(V(-45.2, -97.4, 0), V(0, 0, 1), 1.5),
    Part.Circle(V(-72, 67.5, 0), V(0, 0, 1), 1.5),
    Part.Circle(V(-85, 53, 0), V(0, 0, 1), 1.5),
    Part.Circle(V(-93, 102.5, 0), V(0, 0, 1), 1.5),
], False)
sketch12.addConstraint([
    Sketcher.Constraint("Equal", 0, 1),
    Sketcher.Constraint("Equal", 1, 2),
    Sketcher.Constraint("Equal", 2, 3),
    Sketcher.Constraint("Equal", 3, 4),
    Sketcher.Constraint("Equal", 4, 5),
    Sketcher.Constraint("Equal", 5, 6),
    Sketcher.Constraint("Equal", 6, 7),
    Sketcher.Constraint("Equal", 7, 8),
    Sketcher.Constraint("Equal", 8, 9),
    Sketcher.Constraint("Equal", 9, 10),
    Sketcher.Constraint("Equal", 10, 11),
    Sketcher.Constraint("Horizontal", 0, 3, 1, 3),
    Sketcher.Constraint("Horizontal", 1, 3, 2, 3),
    Sketcher.Constraint("Vertical", 3, 3, 4, 3),
    Sketcher.Constraint("Diameter", 0, Q("3 mm")),
    Sketcher.Constraint("DistanceX", -1, 1, 0, 3, Q("5 mm")),
    Sketcher.Constraint("DistanceX", -1, 1, 2, 3, Q("85 mm")),
    Sketcher.Constraint("DistanceX", -1, 1, 3, 3, Q("132 mm")),
    Sketcher.Constraint("DistanceX", 9, 3, -1, 1, Q("72 mm")),
    Sketcher.Constraint("DistanceX", 10, 3, -1, 1, Q("85 mm")),
    Sketcher.Constraint("DistanceY", -1, 1, 10, 3, Q("53 mm")),
    Sketcher.Constraint("DistanceX", 11, 3, -1, 1, Q("93 mm")),
    Sketcher.Constraint("DistanceY", 8, 3, 7, 3, Q("25 mm")),
    Sketcher.Constraint("DistanceY", 9, 3, 1, 3, Q("42 mm")),
    Sketcher.Constraint("DistanceY", 11, 3, 1, 3, Q("7 mm")),
    Sketcher.Constraint("DistanceY", -1, 1, 0, 3, Q("109.5 mm")),
    Sketcher.Constraint("DistanceX", 7, 3, -1, 1, Q("1.9404 mm")),
    Sketcher.Constraint("DistanceX", -1, 1, 5, 3, Q("119.95048 mm")),
    Sketcher.Constraint("DistanceX", -1, 1, 6, 3, Q("65.767121 mm")),
    Sketcher.Constraint("DistanceX", 8, 3, -1, 1, Q("45.24167 mm")),
    Sketcher.Constraint("DistanceY", 5, 3, 4, 3, Q("44.356309 mm")),
    Sketcher.Constraint("DistanceY", 6, 3, 4, 3, Q("49.122141 mm")),
    Sketcher.Constraint("DistanceY", 6, 3, 3, 3, Q("101.150519 mm")),
    Sketcher.Constraint("DistanceY", 7, 3, 6, 3, Q("32.830888 mm")),
    Sketcher.Constraint("DistanceX", 1, 3, -1, 1, Q("74.967796 mm")),
    Sketcher.Constraint("DistanceY", -1, 1, 3, 3, Q("61.579483 mm")),
])
pocket9 = body.newObject("PartDesign::Pocket", "Pocket008")
pocket9.Profile = sketch12
pocket9.Length = 10
pocket9.Reversed = True

sketch13 = body.newObject("Sketcher::SketchObject", "Sketch012")
sketch13.AttachmentSupport = (doc.getObject("XY_Plane"), [""])
sketch13.MapMode = "FlatFace"
add_polygon(sketch13, [(-95, 56), (-95, 50), (-115, 50), (-115, 56)])
sketch13.addConstraint([
    Sketcher.Constraint("Vertical", 0),
    Sketcher.Constraint("Horizontal", 1),
    Sketcher.Constraint("Vertical", 2),
    Sketcher.Constraint("Horizontal", 3),
    Sketcher.Constraint("DistanceX", 1, 2, 1, 1, Q("20 mm")),
    Sketcher.Constraint("DistanceY", 0, 2, 0, 1, Q("6 mm")),
    Sketcher.Constraint("DistanceX", 0, 2, -1, 1, Q("95 mm")),
    Sketcher.Constraint("DistanceY", -1, 1, 0, 2, Q("50 mm")),
])
pocket10 = body.newObject("PartDesign::Pocket", "Pocket009")
pocket10.Profile = sketch13
pocket10.Length = 10
pocket10.Reversed = True

doc.recompute()
